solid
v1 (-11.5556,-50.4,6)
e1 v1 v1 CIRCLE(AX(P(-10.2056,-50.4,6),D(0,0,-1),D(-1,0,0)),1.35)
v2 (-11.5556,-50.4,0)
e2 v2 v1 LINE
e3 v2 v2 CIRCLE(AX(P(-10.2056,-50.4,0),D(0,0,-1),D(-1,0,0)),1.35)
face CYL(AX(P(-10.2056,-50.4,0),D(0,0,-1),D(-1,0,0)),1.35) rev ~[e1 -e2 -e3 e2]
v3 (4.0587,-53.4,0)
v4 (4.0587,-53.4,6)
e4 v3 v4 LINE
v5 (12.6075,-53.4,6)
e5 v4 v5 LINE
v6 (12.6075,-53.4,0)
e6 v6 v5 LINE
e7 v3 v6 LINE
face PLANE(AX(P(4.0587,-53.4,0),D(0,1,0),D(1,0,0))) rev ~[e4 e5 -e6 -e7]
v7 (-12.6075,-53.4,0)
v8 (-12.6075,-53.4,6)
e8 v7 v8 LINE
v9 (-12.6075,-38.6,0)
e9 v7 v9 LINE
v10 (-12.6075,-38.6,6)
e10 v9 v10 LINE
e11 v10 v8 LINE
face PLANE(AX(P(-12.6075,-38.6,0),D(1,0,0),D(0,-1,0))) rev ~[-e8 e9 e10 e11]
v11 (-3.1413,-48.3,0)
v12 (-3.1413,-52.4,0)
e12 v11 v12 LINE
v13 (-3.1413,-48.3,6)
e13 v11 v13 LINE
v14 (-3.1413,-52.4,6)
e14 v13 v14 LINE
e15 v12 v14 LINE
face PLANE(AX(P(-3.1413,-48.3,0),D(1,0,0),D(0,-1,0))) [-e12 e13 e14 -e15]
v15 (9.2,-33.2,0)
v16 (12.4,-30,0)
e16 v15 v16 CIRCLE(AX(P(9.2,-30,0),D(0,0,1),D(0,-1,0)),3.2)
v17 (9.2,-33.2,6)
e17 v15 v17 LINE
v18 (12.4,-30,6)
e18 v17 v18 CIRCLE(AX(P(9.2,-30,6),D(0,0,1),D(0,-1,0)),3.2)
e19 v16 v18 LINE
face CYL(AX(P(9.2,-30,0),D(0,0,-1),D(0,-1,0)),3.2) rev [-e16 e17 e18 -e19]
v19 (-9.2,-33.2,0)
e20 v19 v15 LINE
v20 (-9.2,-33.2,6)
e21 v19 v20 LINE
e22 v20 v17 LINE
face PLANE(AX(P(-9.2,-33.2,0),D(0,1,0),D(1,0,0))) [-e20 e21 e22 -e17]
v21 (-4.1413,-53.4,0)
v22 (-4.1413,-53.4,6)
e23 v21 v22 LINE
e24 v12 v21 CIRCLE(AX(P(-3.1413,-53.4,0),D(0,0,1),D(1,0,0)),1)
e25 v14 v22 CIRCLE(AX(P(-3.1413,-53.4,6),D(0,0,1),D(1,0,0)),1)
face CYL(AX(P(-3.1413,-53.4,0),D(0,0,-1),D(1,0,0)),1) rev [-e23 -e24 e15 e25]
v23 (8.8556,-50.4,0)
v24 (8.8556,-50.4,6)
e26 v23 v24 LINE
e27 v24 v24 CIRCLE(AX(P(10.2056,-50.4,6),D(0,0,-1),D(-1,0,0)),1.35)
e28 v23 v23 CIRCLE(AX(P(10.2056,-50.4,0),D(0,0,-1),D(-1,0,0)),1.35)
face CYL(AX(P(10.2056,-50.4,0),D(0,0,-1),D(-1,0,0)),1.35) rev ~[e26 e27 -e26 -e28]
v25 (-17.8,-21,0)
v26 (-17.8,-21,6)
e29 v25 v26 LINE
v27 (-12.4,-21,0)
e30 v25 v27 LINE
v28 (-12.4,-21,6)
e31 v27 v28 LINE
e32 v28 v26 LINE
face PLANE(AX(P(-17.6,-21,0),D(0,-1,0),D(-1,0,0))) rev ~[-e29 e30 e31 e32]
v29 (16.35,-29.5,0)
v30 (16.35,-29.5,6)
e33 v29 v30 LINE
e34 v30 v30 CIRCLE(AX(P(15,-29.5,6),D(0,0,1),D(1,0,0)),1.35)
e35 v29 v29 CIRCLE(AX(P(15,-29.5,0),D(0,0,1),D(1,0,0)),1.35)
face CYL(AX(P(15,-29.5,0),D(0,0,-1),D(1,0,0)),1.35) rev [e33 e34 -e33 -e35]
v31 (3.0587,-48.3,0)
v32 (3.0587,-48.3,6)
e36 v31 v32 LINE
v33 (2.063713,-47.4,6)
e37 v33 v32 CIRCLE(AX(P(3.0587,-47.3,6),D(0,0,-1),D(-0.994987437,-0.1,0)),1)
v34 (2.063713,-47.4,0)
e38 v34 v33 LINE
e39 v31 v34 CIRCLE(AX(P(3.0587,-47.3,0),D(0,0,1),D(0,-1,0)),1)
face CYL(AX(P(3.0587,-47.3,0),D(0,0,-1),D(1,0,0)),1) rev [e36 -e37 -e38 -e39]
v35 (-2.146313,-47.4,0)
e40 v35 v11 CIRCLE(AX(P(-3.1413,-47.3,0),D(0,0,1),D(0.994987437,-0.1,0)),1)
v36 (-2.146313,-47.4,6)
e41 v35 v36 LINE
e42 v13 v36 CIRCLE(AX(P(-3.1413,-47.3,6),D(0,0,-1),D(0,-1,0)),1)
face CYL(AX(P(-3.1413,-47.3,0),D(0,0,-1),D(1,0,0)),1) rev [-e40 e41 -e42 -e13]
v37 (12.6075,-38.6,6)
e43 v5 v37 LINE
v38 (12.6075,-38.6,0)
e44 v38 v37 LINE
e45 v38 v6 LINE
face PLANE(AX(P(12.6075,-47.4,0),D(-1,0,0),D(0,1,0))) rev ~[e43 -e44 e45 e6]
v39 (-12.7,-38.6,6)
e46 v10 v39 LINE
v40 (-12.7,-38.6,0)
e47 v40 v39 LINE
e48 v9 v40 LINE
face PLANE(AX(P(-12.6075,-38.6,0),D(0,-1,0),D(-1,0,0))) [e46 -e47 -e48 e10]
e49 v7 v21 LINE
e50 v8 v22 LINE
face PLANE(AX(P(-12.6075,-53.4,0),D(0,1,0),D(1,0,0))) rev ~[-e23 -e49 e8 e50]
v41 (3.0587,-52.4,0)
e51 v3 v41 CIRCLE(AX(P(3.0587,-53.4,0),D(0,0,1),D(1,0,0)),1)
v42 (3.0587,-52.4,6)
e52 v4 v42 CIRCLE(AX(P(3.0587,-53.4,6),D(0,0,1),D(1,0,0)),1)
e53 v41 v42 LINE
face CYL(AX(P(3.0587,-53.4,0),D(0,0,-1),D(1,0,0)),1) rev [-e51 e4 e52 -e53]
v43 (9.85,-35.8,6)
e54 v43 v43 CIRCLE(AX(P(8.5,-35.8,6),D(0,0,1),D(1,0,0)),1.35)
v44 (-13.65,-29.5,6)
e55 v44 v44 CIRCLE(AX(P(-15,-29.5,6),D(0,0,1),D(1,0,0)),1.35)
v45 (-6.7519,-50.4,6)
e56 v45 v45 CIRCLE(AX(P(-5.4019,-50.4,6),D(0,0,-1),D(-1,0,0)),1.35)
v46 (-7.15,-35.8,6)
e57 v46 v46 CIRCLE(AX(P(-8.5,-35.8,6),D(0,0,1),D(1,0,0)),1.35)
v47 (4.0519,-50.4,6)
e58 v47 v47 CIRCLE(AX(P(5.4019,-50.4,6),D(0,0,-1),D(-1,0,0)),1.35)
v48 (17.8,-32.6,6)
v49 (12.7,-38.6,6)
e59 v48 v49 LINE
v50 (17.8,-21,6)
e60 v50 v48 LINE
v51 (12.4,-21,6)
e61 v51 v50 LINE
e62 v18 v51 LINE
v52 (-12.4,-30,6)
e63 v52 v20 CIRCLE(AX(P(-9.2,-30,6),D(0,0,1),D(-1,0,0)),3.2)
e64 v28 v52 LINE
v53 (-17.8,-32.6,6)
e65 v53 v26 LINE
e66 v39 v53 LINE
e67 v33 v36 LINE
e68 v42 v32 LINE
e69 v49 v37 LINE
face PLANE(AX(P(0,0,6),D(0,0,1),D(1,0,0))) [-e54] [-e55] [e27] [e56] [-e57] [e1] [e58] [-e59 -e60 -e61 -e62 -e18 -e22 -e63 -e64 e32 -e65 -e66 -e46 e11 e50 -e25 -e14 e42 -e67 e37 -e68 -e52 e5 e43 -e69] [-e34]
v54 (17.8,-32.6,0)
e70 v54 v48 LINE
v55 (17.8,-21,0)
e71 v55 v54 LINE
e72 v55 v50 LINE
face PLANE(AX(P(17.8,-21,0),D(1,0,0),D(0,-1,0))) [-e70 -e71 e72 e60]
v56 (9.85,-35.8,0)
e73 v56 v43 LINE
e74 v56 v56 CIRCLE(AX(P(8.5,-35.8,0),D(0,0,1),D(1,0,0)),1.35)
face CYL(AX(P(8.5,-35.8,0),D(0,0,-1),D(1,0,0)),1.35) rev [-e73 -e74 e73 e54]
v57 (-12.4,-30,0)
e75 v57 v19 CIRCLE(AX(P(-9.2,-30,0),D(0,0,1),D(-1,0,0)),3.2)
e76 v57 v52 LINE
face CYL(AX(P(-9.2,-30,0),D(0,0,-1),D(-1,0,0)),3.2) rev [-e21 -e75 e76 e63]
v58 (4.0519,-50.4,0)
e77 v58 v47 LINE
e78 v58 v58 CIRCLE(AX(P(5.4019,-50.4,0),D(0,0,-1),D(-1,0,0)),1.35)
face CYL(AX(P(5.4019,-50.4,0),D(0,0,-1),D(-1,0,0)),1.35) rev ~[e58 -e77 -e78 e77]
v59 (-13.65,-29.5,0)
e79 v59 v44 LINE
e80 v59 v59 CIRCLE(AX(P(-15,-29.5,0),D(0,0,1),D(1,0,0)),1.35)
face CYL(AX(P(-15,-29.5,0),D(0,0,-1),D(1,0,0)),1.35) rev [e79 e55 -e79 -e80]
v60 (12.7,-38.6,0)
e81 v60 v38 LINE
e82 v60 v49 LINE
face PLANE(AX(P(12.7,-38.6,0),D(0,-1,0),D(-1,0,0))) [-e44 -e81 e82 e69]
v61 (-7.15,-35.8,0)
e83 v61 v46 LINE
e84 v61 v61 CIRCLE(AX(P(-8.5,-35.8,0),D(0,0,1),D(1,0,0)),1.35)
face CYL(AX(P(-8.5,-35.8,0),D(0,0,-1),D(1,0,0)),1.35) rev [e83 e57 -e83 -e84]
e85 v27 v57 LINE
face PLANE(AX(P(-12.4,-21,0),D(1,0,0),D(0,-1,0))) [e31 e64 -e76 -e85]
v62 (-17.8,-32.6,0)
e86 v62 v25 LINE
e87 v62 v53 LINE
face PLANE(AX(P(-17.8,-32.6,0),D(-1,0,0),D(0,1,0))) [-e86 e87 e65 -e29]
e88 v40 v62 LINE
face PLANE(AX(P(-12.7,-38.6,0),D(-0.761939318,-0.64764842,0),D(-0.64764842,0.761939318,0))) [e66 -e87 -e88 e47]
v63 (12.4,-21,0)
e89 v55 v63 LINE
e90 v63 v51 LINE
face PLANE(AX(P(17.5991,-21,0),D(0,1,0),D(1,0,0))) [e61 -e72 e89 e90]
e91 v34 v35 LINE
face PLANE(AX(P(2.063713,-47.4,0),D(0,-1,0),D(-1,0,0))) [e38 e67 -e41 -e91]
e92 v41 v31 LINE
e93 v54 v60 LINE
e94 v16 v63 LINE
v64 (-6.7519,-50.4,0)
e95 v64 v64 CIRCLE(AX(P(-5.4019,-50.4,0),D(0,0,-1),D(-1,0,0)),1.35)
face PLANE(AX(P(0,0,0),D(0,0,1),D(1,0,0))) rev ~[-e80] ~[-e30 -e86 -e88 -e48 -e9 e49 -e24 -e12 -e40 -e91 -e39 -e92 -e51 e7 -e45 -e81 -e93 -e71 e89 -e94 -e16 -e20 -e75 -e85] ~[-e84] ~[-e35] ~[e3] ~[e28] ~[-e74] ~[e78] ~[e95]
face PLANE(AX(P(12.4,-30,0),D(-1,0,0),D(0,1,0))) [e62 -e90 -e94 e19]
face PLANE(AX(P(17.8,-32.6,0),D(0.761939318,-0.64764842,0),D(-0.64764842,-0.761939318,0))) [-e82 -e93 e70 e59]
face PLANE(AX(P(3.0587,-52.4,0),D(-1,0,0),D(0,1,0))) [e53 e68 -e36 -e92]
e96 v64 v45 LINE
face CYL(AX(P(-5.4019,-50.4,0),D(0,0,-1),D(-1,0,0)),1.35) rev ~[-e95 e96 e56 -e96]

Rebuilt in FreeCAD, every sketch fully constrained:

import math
import FreeCAD as App
import Part
import Sketcher

V = App.Vector

doc = App.newDocument("Part")
body = doc.addObject("PartDesign::Body", "Body")

sketch1 = doc.addObject("Sketcher::SketchObject", "Sketch")
body.addObject(sketch1)
sketch1.AttachmentSupport = (doc.XY_Plane, [""])
sketch1.MapMode = "FlatFace"
sketch1.addGeometry([
    Part.LineSegment(V(17.8, -32.6, 0), V(17.8, -21, 0)),
    Part.LineSegment(V(17.8, -21, 0), V(12.4, -21, 0)),
    Part.LineSegment(V(12.4, -21, 0), V(12.4, -30, 0)),
    Part.ArcOfCircle(Part.Circle(V(9.2, -30, 0), V(0, 0, 1), 3.2), math.radians(-90), math.radians(0)),
    Part.LineSegment(V(9.2, -33.2, 0), V(-9.2, -33.2, 0)),
    Part.ArcOfCircle(Part.Circle(V(-9.2, -30, 0), V(0, 0, 1), 3.2), math.radians(180), math.radians(270)),
    Part.LineSegment(V(-12.4, -30, 0), V(-12.4, -21, 0)),
    Part.LineSegment(V(-12.4, -21, 0), V(-17.8, -21, 0)),
    Part.LineSegment(V(-17.8, -21, 0), V(-17.8, -32.6, 0)),
    Part.LineSegment(V(-17.8, -32.6, 0), V(-12.7, -38.6, 0)),
    Part.LineSegment(V(-12.7, -38.6, 0), V(-12.6075, -38.6, 0)),
    Part.LineSegment(V(-12.6075, -38.6, 0), V(-12.6075, -53.4, 0)),
    Part.LineSegment(V(-12.6075, -53.4, 0), V(-4.1413, -53.4, 0)),
    Part.ArcOfCircle(Part.Circle(V(-3.1413, -53.4, 0), V(0, 0, 1), 1), math.radians(90), math.radians(180)),
    Part.LineSegment(V(-3.1413, -52.4, 0), V(-3.1413, -48.3, 0)),
    Part.ArcOfCircle(Part.Circle(V(-3.1413, -47.3, 0), V(0, 0, 1), 1), math.radians(-5.73917), math.radians(270)),
    Part.LineSegment(V(-2.146313, -47.4, 0), V(2.063713, -47.4, 0)),
    Part.ArcOfCircle(Part.Circle(V(3.0587, -47.3, 0), V(0, 0, 1), 1), math.radians(-90), math.radians(185.73917)),
    Part.LineSegment(V(3.0587, -48.3, 0), V(3.0587, -52.4, 0)),
    Part.ArcOfCircle(Part.Circle(V(3.0587, -53.4, 0), V(0, 0, 1), 1), math.radians(0), math.radians(90)),
    Part.LineSegment(V(4.0587, -53.4, 0), V(12.6075, -53.4, 0)),
    Part.LineSegment(V(12.6075, -53.4, 0), V(12.6075, -38.6, 0)),
    Part.LineSegment(V(12.6075, -38.6, 0), V(12.7, -38.6, 0)),
    Part.LineSegment(V(12.7, -38.6, 0), V(17.8, -32.6, 0)),
    Part.Circle(V(-15, -29.5, 0), V(0, 0, 1), 1.35),
    Part.Circle(V(-8.5, -35.8, 0), V(0, 0, 1), 1.35),
    Part.Circle(V(8.5, -35.8, 0), V(0, 0, 1), 1.35),
    Part.Circle(V(15, -29.5, 0), V(0, 0, 1), 1.35),
], False)
sketch1.addConstraint([
    Sketcher.Constraint("Coincident", 0, 2, 1, 1),
    Sketcher.Constraint("Coincident", 1, 2, 2, 1),
    Sketcher.Constraint("Tangent", 2, 2, 3, 2),
    Sketcher.Constraint("Tangent", 3, 1, 4, 1),
    Sketcher.Constraint("Tangent", 4, 2, 5, 2),
    Sketcher.Constraint("Tangent", 5, 1, 6, 1),
    Sketcher.Constraint("Coincident", 6, 2, 7, 1),
    Sketcher.Constraint("Coincident", 7, 2, 8, 1),
    Sketcher.Constraint("Coincident", 8, 2, 9, 1),
    Sketcher.Constraint("Coincident", 9, 2, 10, 1),
    Sketcher.Constraint("Coincident", 10, 2, 11, 1),
    Sketcher.Constraint("Coincident", 11, 2, 12, 1),
    Sketcher.Constraint("Coincident", 12, 2, 13, 2),
    Sketcher.Constraint("Coincident", 13, 1, 14, 1),
    Sketcher.Constraint("Coincident", 14, 2, 15, 2),
    Sketcher.Constraint("Coincident", 15, 1, 16, 1),
    Sketcher.Constraint("Coincident", 16, 2, 17, 2),
    Sketcher.Constraint("Coincident", 17, 1, 18, 1),
    Sketcher.Constraint("Coincident", 18, 2, 19, 2),
    Sketcher.Constraint("Coincident", 19, 1, 20, 1),
    Sketcher.Constraint("Coincident", 20, 2, 21, 1),
    Sketcher.Constraint("Coincident", 21, 2, 22, 1),
    Sketcher.Constraint("Coincident", 22, 2, 23, 1),
    Sketcher.Constraint("Coincident", 23, 2, 0, 1),
    Sketcher.Constraint("Vertical", 0),
    Sketcher.Constraint("Horizontal", 1),
    Sketcher.Constraint("Vertical", 2),
    Sketcher.Constraint("Horizontal", 4),
    Sketcher.Constraint("Vertical", 6),
    Sketcher.Constraint("Horizontal", 7),
    Sketcher.Constraint("Vertical", 8),
    Sketcher.Constraint("Horizontal", 10),
    Sketcher.Constraint("Vertical", 11),
    Sketcher.Constraint("Horizontal", 12),
    Sketcher.Constraint("Vertical", 14),
    Sketcher.Constraint("Horizontal", 16),
    Sketcher.Constraint("Vertical", 18),
    Sketcher.Constraint("Horizontal", 20),
    Sketcher.Constraint("Vertical", 21),
    Sketcher.Constraint("Horizontal", 22),
    Sketcher.Constraint("Equal", 3, 5),
    Sketcher.Constraint("Equal", 13, 15),
    Sketcher.Constraint("Equal", 15, 17),
    Sketcher.Constraint("Equal", 17, 19),
    Sketcher.Constraint("Equal", 24, 25),
    Sketcher.Constraint("Equal", 25, 26),
    Sketcher.Constraint("Equal", 26, 27),
    Sketcher.Constraint("Symmetric", 25, 3, 26, 3, -2),
    Sketcher.Constraint("Symmetric", 24, 3, 27, 3, -2),
    Sketcher.Constraint("Symmetric", 1, 2, 6, 2, -2),
    Sketcher.Constraint("Symmetric", 11, 2, 20, 2, -2),
    Sketcher.Constraint("Symmetric", 9, 2, 22, 2, -2),
    Sketcher.Constraint("Symmetric", 8, 2, 23, 2, -2),
    Sketcher.Constraint("Horizontal", 15, 3, 17, 3),
    Sketcher.Constraint("Horizontal", 13, 3, 19, 3),
    Sketcher.Constraint("Horizontal", 19, 3, 11, 2),
    Sketcher.Constraint("Vertical", 13, 3, 15, 3),
    Sketcher.Constraint("Vertical", 17, 3, 19, 3),
    Sketcher.Constraint("Vertical", 15, 3, 13, 1),
    Sketcher.Constraint("Vertical", 19, 3, 17, 1),
    Sketcher.Constraint("Radius", 13, 1.0),
    Sketcher.Constraint("DistanceX", 24, 3, -1, 1, 15.0),
    Sketcher.Constraint("Diameter", 24, 2.7),
    Sketcher.Constraint("Radius", 3, 3.2),
    Sketcher.Constraint("DistanceY", 2, 2, 2, 1, 9.0),
    Sketcher.Constraint("DistanceX", 1, 2, 1, 1, 5.4),
    Sketcher.Constraint("DistanceX", 4, 2, 4, 1, 18.4),
    Sketcher.Constraint("DistanceY", 0, 1, 0, 2, 11.6),
    Sketcher.Constraint("DistanceY", 11, 2, 11, 1, 14.8),
    Sketcher.Constraint("DistanceY", 14, 1, 14, 2, 4.1),
    Sketcher.Constraint("DistanceY", 3, 3, -1, 1, 30.0),
    Sketcher.Constraint("DistanceX", 25, 3, 26, 3, 17.0),
    Sketcher.Constraint("DistanceY", 9, 2, 8, 2, 6.0),
    Sketcher.Constraint("DistanceY", 13, 1, 15, 1, 5.0),
    Sketcher.Constraint("DistanceX", 16, 1, 16, 2, 4.21),
    Sketcher.Constraint("DistanceY", 24, 3, -1, 1, 29.5),
    Sketcher.Constraint("DistanceY", 25, 3, -1, 1, 35.8),
    Sketcher.Constraint("DistanceX", 9, 2, -1, 1, 12.7),
    Sketcher.Constraint("DistanceX", 10, 1, 10, 2, 0.0925),
    Sketcher.Constraint("DistanceX", 12, 1, 12, 2, 8.4662),
])
pad1 = doc.addObject("PartDesign::Pad", "Pad")
body.addObject(pad1)
pad1.Profile = sketch1
pad1.Length = 6

sketch2 = doc.addObject("Sketcher::SketchObject", "Sketch001")
body.addObject(sketch2)
sketch2.AttachmentSupport = (doc.XY_Plane, [""])
sketch2.MapMode = "FlatFace"
sketch2.addGeometry([
    Part.Circle(V(-10.2056, -50.4, 0), V(0, 0, 1), 1.35),
    Part.Circle(V(-5.4019, -50.4, 0), V(0, 0, 1), 1.35),
    Part.Circle(V(10.2056, -50.4, 0), V(0, 0, 1), 1.35),
    Part.Circle(V(5.4019, -50.4, 0), V(0, 0, 1), 1.35),
], False)
sketch2.addConstraint([
    Sketcher.Constraint("Equal", 0, 1),
    Sketcher.Constraint("Equal", 1, 2),
    Sketcher.Constraint("Equal", 2, 3),
    Sketcher.Constraint("Symmetric", 0, 3, 2, 3, -2),
    Sketcher.Constraint("Symmetric", 1, 3, 3, 3, -2),
    Sketcher.Constraint("Horizontal", 0, 3, 1, 3),
    Sketcher.Constraint("Diameter", 0, 2.7),
    Sketcher.Constraint("DistanceY", 0, 3, -1, 1, 50.4),
    Sketcher.Constraint("DistanceX", 1, 3, -1, 1, 5.402),
    Sketcher.Constraint("DistanceX", 0, 3, -1, 1, 10.2056),
])
pocket1 = doc.addObject("PartDesign::Pocket", "Pocket")
body.addObject(pocket1)
pocket1.Profile = sketch2
pocket1.Length = 6
pocket1.Reversed = True

doc.recompute()
